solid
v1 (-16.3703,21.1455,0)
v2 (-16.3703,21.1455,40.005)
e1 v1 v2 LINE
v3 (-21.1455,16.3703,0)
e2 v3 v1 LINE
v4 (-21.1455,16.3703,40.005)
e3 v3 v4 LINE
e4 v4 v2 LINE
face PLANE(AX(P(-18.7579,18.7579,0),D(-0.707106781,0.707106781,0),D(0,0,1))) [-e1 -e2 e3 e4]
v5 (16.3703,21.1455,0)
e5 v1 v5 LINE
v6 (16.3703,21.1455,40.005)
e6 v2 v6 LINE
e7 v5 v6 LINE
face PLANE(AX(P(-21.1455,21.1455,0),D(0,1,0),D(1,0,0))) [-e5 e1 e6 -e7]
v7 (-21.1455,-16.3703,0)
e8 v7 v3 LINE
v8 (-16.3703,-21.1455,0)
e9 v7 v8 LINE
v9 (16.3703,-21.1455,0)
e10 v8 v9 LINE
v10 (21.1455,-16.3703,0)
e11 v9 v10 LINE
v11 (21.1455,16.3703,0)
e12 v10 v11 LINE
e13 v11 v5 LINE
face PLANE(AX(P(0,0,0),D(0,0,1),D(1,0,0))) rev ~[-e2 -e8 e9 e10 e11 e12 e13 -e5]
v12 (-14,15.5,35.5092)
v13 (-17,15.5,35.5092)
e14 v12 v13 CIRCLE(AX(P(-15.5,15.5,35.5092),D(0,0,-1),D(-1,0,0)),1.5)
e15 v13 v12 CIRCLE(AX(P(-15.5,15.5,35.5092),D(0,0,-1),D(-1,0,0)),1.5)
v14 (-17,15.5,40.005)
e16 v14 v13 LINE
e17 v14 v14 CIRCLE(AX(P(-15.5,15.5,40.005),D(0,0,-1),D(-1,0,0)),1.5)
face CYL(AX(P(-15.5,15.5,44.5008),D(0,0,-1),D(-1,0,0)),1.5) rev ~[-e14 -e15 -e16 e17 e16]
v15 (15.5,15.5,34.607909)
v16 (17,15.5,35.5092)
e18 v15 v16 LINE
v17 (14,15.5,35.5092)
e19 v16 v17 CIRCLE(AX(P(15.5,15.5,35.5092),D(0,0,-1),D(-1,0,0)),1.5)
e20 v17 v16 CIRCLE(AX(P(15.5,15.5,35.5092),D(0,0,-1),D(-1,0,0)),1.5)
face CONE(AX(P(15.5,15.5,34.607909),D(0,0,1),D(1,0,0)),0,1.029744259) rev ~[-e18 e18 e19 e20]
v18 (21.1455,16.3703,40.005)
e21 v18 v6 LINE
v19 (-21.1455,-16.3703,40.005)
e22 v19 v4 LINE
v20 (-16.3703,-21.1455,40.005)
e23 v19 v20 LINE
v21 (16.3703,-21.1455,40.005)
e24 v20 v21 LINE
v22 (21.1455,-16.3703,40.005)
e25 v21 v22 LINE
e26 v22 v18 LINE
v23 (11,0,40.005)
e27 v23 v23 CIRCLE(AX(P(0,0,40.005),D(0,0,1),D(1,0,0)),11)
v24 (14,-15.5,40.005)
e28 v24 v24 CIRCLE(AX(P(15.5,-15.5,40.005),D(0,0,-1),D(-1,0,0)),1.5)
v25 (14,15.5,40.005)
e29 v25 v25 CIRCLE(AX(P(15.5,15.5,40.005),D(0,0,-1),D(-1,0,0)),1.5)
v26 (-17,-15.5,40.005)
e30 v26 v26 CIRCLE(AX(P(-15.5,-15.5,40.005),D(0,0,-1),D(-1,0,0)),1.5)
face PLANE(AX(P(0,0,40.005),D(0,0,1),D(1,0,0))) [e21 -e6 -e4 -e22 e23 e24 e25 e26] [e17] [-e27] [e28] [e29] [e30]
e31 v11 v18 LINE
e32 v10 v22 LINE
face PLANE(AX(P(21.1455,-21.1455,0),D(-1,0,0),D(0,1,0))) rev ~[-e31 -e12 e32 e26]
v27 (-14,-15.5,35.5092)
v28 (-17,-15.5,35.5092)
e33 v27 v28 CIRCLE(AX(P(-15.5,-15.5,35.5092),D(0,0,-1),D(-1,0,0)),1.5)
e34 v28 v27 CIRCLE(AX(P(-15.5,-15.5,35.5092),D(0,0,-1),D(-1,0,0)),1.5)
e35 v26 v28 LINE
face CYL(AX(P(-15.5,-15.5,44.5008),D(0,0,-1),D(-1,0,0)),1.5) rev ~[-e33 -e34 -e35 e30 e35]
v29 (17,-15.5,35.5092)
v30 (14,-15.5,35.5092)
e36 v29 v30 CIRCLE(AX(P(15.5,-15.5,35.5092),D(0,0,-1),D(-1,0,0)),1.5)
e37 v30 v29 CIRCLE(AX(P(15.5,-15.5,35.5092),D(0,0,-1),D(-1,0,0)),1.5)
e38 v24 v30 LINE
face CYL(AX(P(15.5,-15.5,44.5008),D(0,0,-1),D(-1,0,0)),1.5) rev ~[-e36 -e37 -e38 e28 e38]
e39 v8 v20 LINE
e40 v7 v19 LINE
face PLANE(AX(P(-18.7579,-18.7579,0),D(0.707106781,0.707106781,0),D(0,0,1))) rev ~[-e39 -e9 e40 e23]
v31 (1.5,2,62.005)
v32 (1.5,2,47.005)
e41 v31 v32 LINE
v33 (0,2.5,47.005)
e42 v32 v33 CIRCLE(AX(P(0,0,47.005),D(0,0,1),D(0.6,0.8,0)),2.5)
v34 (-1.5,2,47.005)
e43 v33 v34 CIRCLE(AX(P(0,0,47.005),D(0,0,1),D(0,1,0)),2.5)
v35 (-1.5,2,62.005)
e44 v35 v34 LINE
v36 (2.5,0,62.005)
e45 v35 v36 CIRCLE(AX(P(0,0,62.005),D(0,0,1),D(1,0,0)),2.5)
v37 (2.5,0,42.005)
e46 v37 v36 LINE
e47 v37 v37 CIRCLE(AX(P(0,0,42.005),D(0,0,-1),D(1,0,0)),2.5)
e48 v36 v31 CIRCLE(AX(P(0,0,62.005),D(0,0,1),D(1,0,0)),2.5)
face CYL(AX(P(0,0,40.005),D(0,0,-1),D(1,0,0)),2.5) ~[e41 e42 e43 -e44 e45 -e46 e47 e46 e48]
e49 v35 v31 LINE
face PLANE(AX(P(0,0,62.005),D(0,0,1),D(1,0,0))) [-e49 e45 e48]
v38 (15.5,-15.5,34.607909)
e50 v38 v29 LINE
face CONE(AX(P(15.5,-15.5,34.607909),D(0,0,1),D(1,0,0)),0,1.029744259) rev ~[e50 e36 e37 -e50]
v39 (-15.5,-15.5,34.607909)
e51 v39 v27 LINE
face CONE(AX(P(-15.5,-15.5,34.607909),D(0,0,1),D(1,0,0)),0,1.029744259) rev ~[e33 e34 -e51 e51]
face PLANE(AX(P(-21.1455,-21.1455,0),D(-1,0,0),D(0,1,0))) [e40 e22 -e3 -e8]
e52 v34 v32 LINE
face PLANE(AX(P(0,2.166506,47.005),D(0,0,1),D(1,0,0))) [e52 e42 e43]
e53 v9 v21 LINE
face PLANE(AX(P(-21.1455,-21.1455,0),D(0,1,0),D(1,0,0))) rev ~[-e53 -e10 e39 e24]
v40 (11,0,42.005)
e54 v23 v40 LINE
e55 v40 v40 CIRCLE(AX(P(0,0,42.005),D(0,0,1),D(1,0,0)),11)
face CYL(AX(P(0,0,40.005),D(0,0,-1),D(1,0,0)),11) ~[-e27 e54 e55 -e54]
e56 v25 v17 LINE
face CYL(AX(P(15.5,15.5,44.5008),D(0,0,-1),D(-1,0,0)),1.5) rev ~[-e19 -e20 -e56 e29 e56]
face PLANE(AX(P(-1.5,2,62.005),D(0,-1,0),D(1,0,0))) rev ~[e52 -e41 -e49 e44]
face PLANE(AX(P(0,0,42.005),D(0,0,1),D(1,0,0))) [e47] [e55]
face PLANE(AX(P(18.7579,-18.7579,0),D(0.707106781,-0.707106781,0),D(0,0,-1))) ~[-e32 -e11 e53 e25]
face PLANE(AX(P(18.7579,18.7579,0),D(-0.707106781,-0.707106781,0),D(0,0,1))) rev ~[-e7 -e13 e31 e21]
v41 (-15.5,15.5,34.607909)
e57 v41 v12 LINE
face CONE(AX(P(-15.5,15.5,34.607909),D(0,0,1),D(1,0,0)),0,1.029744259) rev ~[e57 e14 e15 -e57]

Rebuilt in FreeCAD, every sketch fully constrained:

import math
import FreeCAD as App
import Part
import Sketcher


def edges_at(feature, points):
    """Names of the edges that pass closest to the given points."""
    edges = feature.Shape.Edges
    near = lambda p: min(range(len(edges)), key=lambda i: edges[i].distToShape(Part.Vertex(*p))[0])
    return sorted({f"Edge{near(p) + 1}" for p in points})


def add_polygon(sketch, points):
    """Adds a closed chain of lines whose ends are joined by coincident constraints."""
    first, n = sketch.GeometryCount, len(points)
    for a, b in zip(points, points[1:] + points[:1]):
        sketch.addGeometry(Part.LineSegment(App.Vector(*a, 0), App.Vector(*b, 0)), False)
    for i in range(n):
        sketch.addConstraint(Sketcher.Constraint("Coincident", first + i, 2, first + (i + 1) % n, 1))

doc = App.newDocument("Part")
body = doc.addObject("PartDesign::Body", "Body")

sketch1 = body.newObject("Sketcher::SketchObject", "Sketch")
sketch1.AttachmentSupport = (doc.getObject("XY_Plane"), [""])
sketch1.MapMode = "FlatFace"
add_polygon(sketch1, [(-21, 21), (-21, -21), (21, -21), (21, 21)])
sketch1.addConstraint([
    Sketcher.Constraint("Vertical", 0),
    Sketcher.Constraint("Horizontal", 1),
    Sketcher.Constraint("Vertical", 2),
    Sketcher.Constraint("Horizontal", 3),
    Sketcher.Constraint("Symmetric", 0, 2, 2, 2, -1, 1),
    Sketcher.Constraint("Equal", 3, 0),
    Sketcher.Constraint("DistanceX", 1, 1, 1, 2, 42.291),
])
pad1 = body.newObject("PartDesign::Pad", "Pad")
pad1.Profile = sketch1
pad1.Length = 40.005
doc.recompute()

chamfer = body.newObject("PartDesign::Chamfer", "Chamfer")
chamfer.Base = (pad1, edges_at(pad1, [
    (21.145, -21.145, 20.003),
    (21.145, 21.145, 20.003),
    (-21.145, 21.145, 20.003),
    (-21.145, -21.145, 20.003),
]))
chamfer.Size = 4.7752

sketch2 = body.newObject("Sketcher::SketchObject", "Sketch001")
sketch2.AttachmentSupport = (doc.getObject("XY_Plane"), [""])
sketch2.MapMode = "FlatFace"
sketch2.AttachmentOffset = App.Placement(App.Vector(0, 0, 40.005), App.Rotation())
sketch2.addGeometry(Part.Circle(App.Vector(0, 0, 0), App.Vector(0, 0, 1), 11), False)
sketch2.addConstraint([
    Sketcher.Constraint("Coincident", 0, 3, -1, 1),
    Sketcher.Constraint("Diameter", 0, 22.0),
])
pad2 = body.newObject("PartDesign::Pad", "Pad001")
pad2.Profile = sketch2
pad2.Length = 2

sketch3 = body.newObject("Sketcher::SketchObject", "Sketch002")
sketch3.AttachmentSupport = (doc.getObject("XY_Plane"), [""])
sketch3.MapMode = "FlatFace"
sketch3.AttachmentOffset = App.Placement(App.Vector(0, 0, 40.005), App.Rotation())
sketch3.addGeometry(Part.Circle(App.Vector(0, 0, 0), App.Vector(0, 0, 1), 2.5), False)
sketch3.addConstraint([
    Sketcher.Constraint("Coincident", 0, 3, -1, 1),
    Sketcher.Constraint("Diameter", 0, 5.0),
])
pad3 = body.newObject("PartDesign::Pad", "Pad002")
pad3.Profile = sketch3
pad3.Length = 22

sketch4 = body.newObject("Sketcher::SketchObject", "Sketch003")
sketch4.AttachmentSupport = (doc.getObject("XY_Plane"), [""])
sketch4.MapMode = "FlatFace"
sketch4.AttachmentOffset = App.Placement(App.Vector(0, 0, 62.005), App.Rotation())
sketch4.addGeometry([
    Part.ArcOfCircle(Part.Circle(App.Vector(0, 0, 0), App.Vector(0, 0, 1), 2.5), math.radians(53), math.radians(90)),
    Part.ArcOfCircle(Part.Circle(App.Vector(0, 0, 0), App.Vector(0, 0, 1), 2.5), math.radians(90), math.radians(127)),
    Part.LineSegment(App.Vector(-1.5, 2, 0), App.Vector(1.5, 2, 0)),
], False)
sketch4.addConstraint([
    Sketcher.Constraint("Tangent", 0, 2, 1, 1),
    Sketcher.Constraint("Coincident", 1, 2, 2, 1),
    Sketcher.Constraint("Coincident", 2, 2, 0, 1),
    Sketcher.Constraint("Horizontal", 2),
    Sketcher.Constraint("Coincident", 0, 3, -1, 1),
    Sketcher.Constraint("Equal", 0, 1),
    Sketcher.Constraint("PointOnObject", 0, 2, -2),
    Sketcher.Constraint("Radius", 0, 2.5),
    Sketcher.Constraint("DistanceX", 2, 1, 2, 2, 3.0),
])
pocket1 = body.newObject("PartDesign::Pocket", "Pocket")
pocket1.Profile = sketch4
pocket1.Length = 15

sketch5 = body.newObject("Sketcher::SketchObject", "Sketch004")
sketch5.AttachmentSupport = (doc.getObject("XY_Plane"), [""])
sketch5.MapMode = "FlatFace"
sketch5.AttachmentOffset = App.Placement(App.Vector(0, 0, 40.005), App.Rotation())
sketch5.addGeometry([
    Part.Circle(App.Vector(-15.5, 15.5, 0), App.Vector(0, 0, 1), 1.5),
    Part.Circle(App.Vector(-15.5, -15.5, 0), App.Vector(0, 0, 1), 1.5),
    Part.Circle(App.Vector(15.5, -15.5, 0), App.Vector(0, 0, 1), 1.5),
    Part.Circle(App.Vector(15.5, 15.5, 0), App.Vector(0, 0, 1), 1.5),
], False)
sketch5.addConstraint([
    Sketcher.Constraint("Equal", 0, 1),
    Sketcher.Constraint("Equal", 1, 2),
    Sketcher.Constraint("Equal", 2, 3),
    Sketcher.Constraint("Symmetric", 0, 3, 2, 3, -1, 1),
    Sketcher.Constraint("Symmetric", 1, 3, 3, 3, -1, 1),
    Sketcher.Constraint("Symmetric", 1, 3, 2, 3, -2),
    Sketcher.Constraint("Diameter", 0, 3.0),
    Sketcher.Constraint("DistanceY", 1, 3, 0, 3, 31.0),
    Sketcher.Constraint("DistanceX", 1, 3, 2, 3, 31.0),
])
doc.recompute()
hole = body.newObject("PartDesign::Hole", "Hole")
hole.Profile = sketch5
hole.ThreadType = "None"
hole.Diameter = 3
hole.DepthType = "Dimension"
hole.Depth = 4.4958
hole.DrillPoint = "Angled"
hole.DrillPointAngle = 118

doc.recompute()
